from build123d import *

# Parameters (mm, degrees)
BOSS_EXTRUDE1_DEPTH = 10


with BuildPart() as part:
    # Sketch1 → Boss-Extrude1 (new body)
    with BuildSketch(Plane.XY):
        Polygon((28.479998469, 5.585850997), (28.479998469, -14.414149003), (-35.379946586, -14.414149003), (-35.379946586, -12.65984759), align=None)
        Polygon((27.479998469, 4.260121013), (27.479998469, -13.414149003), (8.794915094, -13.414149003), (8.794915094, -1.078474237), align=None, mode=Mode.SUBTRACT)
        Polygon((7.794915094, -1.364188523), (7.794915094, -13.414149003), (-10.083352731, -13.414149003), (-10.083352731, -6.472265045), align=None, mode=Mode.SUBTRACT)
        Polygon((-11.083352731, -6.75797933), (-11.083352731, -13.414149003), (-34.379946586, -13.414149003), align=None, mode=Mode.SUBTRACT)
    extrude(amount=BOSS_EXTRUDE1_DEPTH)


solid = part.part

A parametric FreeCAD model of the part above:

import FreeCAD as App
import Part
import Sketcher

V = App.Vector

doc = App.newDocument("Part")
body = doc.addObject("PartDesign::Body", "Body")

sketch1 = doc.addObject("Sketcher::SketchObject", "Sketch")
body.addObject(sketch1)
sketch1.AttachmentSupport = (doc.XY_Plane, [""])
sketch1.MapMode = "FlatFace"
sketch1.addGeometry([
    Part.LineSegment(V(28.5, -14.4, 0), V(28.5, 5.6, 0)),
    Part.LineSegment(V(28.5, 5.6, 0), V(-35.4, -12.7, 0)),
    Part.LineSegment(V(-35.4, -12.7, 0), V(-35.4, -14.4, 0)),
    Part.LineSegment(V(-35.4, -14.4, 0), V(28.5, -14.4, 0)),
    Part.LineSegment(V(7.8, -1.4, 0), V(7.8, -13.4, 0)),
    Part.LineSegment(V(7.8, -13.4, 0), V(-10.1, -13.4, 0)),
    Part.LineSegment(V(-10.1, -13.4, 0), V(-10.1, -6.5, 0)),
    Part.LineSegment(V(-10.1, -6.5, 0), V(7.8, -1.4, 0)),
    Part.LineSegment(V(-11.1, -6.8, 0), V(-11.1, -13.4, 0)),
    Part.LineSegment(V(-11.1, -13.4, 0), V(-34.4, -13.4, 0)),
    Part.LineSegment(V(-34.4, -13.4, 0), V(-11.1, -6.8, 0)),
    Part.LineSegment(V(27.5, 4.3, 0), V(27.5, -13.4, 0)),
    Part.LineSegment(V(27.5, -13.4, 0), V(8.8, -13.4, 0)),
    Part.LineSegment(V(8.8, -13.4, 0), V(8.8, -1.1, 0)),
    Part.LineSegment(V(8.8, -1.1, 0), V(27.5, 4.3, 0)),
], False)
sketch1.addConstraint([
    Sketcher.Constraint("Coincident", 0, 2, 1, 1),
    Sketcher.Constraint("Coincident", 1, 2, 2, 1),
    Sketcher.Constraint("Coincident", 2, 2, 3, 1),
    Sketcher.Constraint("Coincident", 3, 2, 0, 1),
    Sketcher.Constraint("Coincident", 4, 2, 5, 1),
    Sketcher.Constraint("Coincident", 5, 2, 6, 1),
    Sketcher.Constraint("Coincident", 6, 2, 7, 1),
    Sketcher.Constraint("Coincident", 7, 2, 4, 1),
    Sketcher.Constraint("Coincident", 8, 2, 9, 1),
    Sketcher.Constraint("Coincident", 9, 2, 10, 1),
    Sketcher.Constraint("Coincident", 10, 2, 8, 1),
    Sketcher.Constraint("Coincident", 11, 2, 12, 1),
    Sketcher.Constraint("Coincident", 12, 2, 13, 1),
    Sketcher.Constraint("Coincident", 13, 2, 14, 1),
    Sketcher.Constraint("Coincident", 14, 2, 11, 1),
    Sketcher.Constraint("Vertical", 0),
    Sketcher.Constraint("Vertical", 2),
    Sketcher.Constraint("Horizontal", 3),
    Sketcher.Constraint("Vertical", 4),
    Sketcher.Constraint("Horizontal", 5),
    Sketcher.Constraint("Vertical", 6),
    Sketcher.Constraint("Vertical", 8),
    Sketcher.Constraint("Horizontal", 9),
    Sketcher.Constraint("Vertical", 11),
    Sketcher.Constraint("Horizontal", 12),
    Sketcher.Constraint("Vertical", 13),
    Sketcher.Constraint("Parallel", 1, 7),
    Sketcher.Constraint("Parallel", 7, 10),
    Sketcher.Constraint("Parallel", 10, 14),
    Sketcher.Constraint("Horizontal", 5, 2, 8, 2),
    Sketcher.Constraint("Horizontal", 9, 2, 11, 2),
    Sketcher.Constraint("DistanceY", 0, 1, 0, 2, 20.0),
    Sketcher.Constraint("DistanceY", 3, 2, 4, 2, 1.0),
    Sketcher.Constraint("DistanceX", 8, 2, 5, 2, 1.0),
    Sketcher.Constraint("DistanceX", 1, 2, 9, 2, 1.0),
    Sketcher.Constraint("DistanceX", 11, 2, 3, 2, 1.0),
    Sketcher.Constraint("DistanceX", 4, 2, 12, 2, 1.0),
    Sketcher.Constraint("DistanceX", -1, 1, 0, 2, 28.479998),
    Sketcher.Constraint("DistanceY", 2, 2, 2, 1, 1.754301),
    Sketcher.Constraint("DistanceY", 4, 2, 4, 1, 12.04996),
    Sketcher.Constraint("DistanceY", 8, 2, 8, 1, 6.65617),
    Sketcher.Constraint("DistanceY", 11, 2, 11, 1, 17.67427),
    Sketcher.Constraint("Distance", 7, 18.593679),
    Sketcher.Constraint("Distance", 14, 19.43278),
    Sketcher.Constraint("DistanceY", -1, 1, 0, 2, 5.585851),
])
pad1 = doc.addObject("PartDesign::Pad", "Pad")
body.addObject(pad1)
pad1.Profile = sketch1
pad1.Length = 10

doc.recompute()
